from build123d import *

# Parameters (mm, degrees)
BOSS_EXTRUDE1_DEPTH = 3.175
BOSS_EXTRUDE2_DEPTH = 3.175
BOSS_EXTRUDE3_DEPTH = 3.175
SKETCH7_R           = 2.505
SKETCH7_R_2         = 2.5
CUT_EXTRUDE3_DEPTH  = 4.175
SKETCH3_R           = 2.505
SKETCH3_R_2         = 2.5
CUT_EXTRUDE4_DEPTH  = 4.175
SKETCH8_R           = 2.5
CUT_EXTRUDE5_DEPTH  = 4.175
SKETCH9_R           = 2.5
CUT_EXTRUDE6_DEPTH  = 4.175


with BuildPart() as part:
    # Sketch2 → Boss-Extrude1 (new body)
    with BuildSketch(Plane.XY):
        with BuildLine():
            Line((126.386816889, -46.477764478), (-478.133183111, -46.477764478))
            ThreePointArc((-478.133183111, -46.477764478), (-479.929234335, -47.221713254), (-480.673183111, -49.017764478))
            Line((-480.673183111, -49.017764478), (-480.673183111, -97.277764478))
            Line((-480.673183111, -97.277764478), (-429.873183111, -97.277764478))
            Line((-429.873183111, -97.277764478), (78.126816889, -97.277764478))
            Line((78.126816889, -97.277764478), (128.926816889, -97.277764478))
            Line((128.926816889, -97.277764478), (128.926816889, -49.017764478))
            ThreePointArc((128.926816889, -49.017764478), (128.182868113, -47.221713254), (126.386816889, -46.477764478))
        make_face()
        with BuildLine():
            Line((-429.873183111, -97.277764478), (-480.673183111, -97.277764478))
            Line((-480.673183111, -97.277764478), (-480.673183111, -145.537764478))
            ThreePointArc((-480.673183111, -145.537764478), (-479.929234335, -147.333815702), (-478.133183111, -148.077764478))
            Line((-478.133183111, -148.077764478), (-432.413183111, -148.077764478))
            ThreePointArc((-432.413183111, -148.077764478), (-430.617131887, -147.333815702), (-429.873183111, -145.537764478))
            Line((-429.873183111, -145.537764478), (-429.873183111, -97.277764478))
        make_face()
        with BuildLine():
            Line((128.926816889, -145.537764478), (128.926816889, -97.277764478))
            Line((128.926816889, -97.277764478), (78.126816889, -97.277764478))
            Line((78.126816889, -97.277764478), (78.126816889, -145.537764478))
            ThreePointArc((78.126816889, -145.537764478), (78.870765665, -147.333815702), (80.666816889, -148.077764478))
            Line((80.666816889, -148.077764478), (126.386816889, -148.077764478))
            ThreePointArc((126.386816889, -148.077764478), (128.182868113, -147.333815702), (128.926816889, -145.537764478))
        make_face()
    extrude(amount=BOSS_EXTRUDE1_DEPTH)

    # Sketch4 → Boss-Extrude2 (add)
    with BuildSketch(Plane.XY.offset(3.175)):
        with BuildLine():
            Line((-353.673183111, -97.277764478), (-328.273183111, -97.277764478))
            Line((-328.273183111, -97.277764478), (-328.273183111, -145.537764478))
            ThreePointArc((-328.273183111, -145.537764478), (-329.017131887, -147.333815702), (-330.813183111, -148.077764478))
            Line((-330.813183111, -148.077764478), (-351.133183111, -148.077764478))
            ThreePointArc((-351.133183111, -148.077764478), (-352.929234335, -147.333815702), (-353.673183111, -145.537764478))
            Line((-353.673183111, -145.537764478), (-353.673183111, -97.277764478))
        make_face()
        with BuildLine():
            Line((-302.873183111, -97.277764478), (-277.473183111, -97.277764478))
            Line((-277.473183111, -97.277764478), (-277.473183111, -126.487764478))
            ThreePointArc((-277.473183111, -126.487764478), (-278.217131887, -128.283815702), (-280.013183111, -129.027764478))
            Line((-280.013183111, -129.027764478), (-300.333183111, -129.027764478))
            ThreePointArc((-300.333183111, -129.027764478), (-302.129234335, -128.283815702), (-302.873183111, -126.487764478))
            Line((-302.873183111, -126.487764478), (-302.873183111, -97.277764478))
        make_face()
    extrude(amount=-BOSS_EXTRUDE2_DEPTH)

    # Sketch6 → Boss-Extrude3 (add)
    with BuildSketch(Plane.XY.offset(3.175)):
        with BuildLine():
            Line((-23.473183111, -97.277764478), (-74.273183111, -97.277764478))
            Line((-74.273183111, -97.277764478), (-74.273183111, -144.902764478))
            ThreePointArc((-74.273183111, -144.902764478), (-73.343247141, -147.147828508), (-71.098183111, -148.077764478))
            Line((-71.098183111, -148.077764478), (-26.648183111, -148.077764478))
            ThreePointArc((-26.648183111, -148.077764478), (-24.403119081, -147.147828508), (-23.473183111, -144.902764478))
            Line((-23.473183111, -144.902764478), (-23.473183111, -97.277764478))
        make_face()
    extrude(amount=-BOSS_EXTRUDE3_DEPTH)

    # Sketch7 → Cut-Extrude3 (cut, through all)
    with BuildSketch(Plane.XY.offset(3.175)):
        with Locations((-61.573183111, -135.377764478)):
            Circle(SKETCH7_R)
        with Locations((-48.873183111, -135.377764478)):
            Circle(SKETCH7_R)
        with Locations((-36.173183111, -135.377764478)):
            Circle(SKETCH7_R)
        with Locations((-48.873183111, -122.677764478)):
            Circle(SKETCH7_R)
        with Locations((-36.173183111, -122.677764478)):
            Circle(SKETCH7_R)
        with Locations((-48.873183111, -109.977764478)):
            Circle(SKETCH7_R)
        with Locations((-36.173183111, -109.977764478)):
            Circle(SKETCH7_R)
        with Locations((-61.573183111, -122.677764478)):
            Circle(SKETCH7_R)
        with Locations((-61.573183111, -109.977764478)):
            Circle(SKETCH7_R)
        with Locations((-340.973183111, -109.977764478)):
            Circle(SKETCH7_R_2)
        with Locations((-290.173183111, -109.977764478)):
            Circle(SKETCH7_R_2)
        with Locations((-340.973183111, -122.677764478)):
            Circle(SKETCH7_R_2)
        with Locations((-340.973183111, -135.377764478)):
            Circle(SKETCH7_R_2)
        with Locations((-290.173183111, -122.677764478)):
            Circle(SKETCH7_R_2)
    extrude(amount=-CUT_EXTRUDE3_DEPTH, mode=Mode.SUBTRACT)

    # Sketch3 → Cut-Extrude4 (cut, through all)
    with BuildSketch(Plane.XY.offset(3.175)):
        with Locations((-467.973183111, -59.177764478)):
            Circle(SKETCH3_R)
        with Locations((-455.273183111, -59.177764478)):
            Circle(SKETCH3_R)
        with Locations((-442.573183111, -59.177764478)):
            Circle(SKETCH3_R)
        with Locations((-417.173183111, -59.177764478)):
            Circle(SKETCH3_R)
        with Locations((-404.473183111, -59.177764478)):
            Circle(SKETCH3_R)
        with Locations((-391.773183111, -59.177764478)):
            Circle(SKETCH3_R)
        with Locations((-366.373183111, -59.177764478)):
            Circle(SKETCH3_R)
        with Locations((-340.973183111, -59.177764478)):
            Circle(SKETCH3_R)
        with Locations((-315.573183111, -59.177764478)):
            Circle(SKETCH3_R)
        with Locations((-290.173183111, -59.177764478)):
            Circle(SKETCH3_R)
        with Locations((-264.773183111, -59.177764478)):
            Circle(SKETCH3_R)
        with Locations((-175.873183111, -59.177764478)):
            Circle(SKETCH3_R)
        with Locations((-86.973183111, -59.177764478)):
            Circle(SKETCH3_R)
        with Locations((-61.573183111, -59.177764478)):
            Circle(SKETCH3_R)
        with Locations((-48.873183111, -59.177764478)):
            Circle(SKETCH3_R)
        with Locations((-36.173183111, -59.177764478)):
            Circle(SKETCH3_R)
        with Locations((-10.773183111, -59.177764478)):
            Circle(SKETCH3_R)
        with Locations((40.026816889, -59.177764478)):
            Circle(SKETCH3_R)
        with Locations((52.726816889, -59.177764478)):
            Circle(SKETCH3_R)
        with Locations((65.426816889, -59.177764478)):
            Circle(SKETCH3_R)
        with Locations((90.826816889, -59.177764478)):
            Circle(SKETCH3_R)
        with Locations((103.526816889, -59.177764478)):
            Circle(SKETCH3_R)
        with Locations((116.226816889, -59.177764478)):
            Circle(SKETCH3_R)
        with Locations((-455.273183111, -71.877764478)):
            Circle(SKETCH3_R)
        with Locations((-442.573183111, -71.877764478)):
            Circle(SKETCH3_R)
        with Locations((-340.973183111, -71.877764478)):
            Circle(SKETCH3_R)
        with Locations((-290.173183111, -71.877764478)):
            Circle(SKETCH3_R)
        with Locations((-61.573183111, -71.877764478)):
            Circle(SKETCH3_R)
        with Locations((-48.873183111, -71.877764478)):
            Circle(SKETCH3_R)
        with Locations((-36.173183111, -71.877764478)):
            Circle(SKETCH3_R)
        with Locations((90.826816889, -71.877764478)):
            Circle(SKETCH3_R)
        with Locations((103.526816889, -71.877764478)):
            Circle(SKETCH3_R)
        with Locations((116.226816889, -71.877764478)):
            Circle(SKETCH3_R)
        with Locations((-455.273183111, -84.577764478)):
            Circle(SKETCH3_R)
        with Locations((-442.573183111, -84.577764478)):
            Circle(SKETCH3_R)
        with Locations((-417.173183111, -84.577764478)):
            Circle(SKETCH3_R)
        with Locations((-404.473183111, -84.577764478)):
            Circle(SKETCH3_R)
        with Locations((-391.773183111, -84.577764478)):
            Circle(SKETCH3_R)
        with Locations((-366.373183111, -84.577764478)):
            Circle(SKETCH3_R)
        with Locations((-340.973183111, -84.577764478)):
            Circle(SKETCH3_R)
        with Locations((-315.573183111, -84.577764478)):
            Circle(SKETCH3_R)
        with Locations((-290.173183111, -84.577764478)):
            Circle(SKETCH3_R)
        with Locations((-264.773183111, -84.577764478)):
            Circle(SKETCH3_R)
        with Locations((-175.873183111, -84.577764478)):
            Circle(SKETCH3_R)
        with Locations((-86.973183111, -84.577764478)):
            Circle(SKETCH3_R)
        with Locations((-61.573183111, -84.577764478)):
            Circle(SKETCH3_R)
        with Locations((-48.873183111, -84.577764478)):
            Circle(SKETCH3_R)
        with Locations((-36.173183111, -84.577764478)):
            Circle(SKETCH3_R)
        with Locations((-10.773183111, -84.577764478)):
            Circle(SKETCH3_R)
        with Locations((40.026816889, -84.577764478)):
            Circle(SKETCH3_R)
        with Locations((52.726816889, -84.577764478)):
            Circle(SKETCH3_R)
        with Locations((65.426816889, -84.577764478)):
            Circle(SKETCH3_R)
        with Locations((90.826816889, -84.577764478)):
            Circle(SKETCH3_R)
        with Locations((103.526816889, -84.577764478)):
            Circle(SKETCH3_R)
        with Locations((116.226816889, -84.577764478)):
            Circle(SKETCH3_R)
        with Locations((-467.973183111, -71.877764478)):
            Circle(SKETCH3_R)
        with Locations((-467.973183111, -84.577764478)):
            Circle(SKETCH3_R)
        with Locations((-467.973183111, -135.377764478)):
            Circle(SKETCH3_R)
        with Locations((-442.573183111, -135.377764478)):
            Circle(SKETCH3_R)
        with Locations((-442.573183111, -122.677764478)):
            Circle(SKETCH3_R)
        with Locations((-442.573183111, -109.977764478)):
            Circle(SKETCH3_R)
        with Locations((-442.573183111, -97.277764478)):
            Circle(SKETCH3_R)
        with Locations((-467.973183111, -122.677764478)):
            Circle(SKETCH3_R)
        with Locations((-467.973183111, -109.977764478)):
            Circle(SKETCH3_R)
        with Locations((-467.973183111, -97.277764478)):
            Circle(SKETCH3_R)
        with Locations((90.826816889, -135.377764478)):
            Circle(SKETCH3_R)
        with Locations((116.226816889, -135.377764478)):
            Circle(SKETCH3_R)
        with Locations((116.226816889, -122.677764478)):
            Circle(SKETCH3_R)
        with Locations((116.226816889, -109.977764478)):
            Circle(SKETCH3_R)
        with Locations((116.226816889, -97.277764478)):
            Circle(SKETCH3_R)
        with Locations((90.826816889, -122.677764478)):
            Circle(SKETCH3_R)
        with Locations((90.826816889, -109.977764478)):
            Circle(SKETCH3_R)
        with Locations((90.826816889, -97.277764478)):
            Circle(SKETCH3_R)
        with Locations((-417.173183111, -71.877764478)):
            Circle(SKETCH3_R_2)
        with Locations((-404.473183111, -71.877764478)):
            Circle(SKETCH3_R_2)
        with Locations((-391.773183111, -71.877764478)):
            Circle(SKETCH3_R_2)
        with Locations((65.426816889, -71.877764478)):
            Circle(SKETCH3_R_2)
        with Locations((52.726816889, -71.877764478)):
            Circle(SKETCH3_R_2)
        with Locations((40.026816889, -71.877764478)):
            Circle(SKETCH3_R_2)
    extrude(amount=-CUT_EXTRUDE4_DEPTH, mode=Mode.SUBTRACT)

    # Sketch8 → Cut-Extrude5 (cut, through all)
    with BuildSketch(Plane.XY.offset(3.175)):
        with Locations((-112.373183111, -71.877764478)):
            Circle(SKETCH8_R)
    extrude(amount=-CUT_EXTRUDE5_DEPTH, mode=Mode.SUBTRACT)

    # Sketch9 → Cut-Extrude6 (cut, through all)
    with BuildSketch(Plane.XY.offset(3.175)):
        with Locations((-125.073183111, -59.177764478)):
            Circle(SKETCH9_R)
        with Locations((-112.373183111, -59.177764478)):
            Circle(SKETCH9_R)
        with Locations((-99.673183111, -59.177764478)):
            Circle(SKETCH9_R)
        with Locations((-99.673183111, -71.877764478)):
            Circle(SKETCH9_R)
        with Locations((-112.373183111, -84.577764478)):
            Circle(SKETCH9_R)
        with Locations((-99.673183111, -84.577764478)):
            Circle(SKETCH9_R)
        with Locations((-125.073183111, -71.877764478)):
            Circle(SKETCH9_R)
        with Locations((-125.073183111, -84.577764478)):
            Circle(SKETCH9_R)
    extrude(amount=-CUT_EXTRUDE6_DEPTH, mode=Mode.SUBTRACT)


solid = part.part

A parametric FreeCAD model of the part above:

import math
import FreeCAD as App
import Part
import Sketcher

V = App.Vector
Q = App.Units.Quantity

doc = App.newDocument("Part")
body = doc.addObject("PartDesign::Body", "Body")

sketch1 = doc.addObject("Sketcher::SketchObject", "Sketch")
body.addObject(sketch1)
sketch1.AttachmentSupport = (doc.XY_Plane, [""])
sketch1.MapMode = "FlatFace"
sketch1.addGeometry([
    Part.LineSegment(V(126.4, -46.5, 0), V(-478.1, -46.5, 0)),
    Part.ArcOfCircle(Part.Circle(V(-478.1, -49, 0), V(0, 0, 1), 2.5), math.radians(90), math.radians(180)),
    Part.LineSegment(V(-480.7, -49, 0), V(-480.7, -145.5, 0)),
    Part.ArcOfCircle(Part.Circle(V(-478.1, -145.5, 0), V(0, 0, 1), 2.5), math.radians(-180), math.radians(-90)),
    Part.LineSegment(V(-478.1, -148.1, 0), V(-432.4, -148.1, 0)),
    Part.ArcOfCircle(Part.Circle(V(-432.4, -145.5, 0), V(0, 0, 1), 2.5), math.radians(-90), math.radians(0)),
    Part.LineSegment(V(-429.9, -145.5, 0), V(-429.9, -97.3, 0)),
    Part.LineSegment(V(-429.9, -97.3, 0), V(78.1, -97.3, 0)),
    Part.LineSegment(V(78.1, -97.3, 0), V(78.1, -145.5, 0)),
    Part.ArcOfCircle(Part.Circle(V(80.7, -145.5, 0), V(0, 0, 1), 2.5), math.radians(-180), math.radians(-90)),
    Part.LineSegment(V(80.7, -148.1, 0), V(126.4, -148.1, 0)),
    Part.ArcOfCircle(Part.Circle(V(126.4, -145.5, 0), V(0, 0, 1), 2.5), math.radians(-90), math.radians(0)),
    Part.LineSegment(V(128.9, -145.5, 0), V(128.9, -49, 0)),
    Part.ArcOfCircle(Part.Circle(V(126.4, -49, 0), V(0, 0, 1), 2.5), math.radians(0), math.radians(90)),
], False)
sketch1.addConstraint([
    Sketcher.Constraint("Tangent", 0, 2, 1, 1),
    Sketcher.Constraint("Tangent", 1, 2, 2, 1),
    Sketcher.Constraint("Tangent", 2, 2, 3, 1),
    Sketcher.Constraint("Tangent", 3, 2, 4, 1),
    Sketcher.Constraint("Tangent", 4, 2, 5, 1),
    Sketcher.Constraint("Tangent", 5, 2, 6, 1),
    Sketcher.Constraint("Coincident", 6, 2, 7, 1),
    Sketcher.Constraint("Coincident", 7, 2, 8, 1),
    Sketcher.Constraint("Tangent", 8, 2, 9, 1),
    Sketcher.Constraint("Tangent", 9, 2, 10, 1),
    Sketcher.Constraint("Tangent", 10, 2, 11, 1),
    Sketcher.Constraint("Tangent", 11, 2, 12, 1),
    Sketcher.Constraint("Tangent", 12, 2, 13, 1),
    Sketcher.Constraint("Tangent", 13, 2, 0, 1),
    Sketcher.Constraint("Horizontal", 0),
    Sketcher.Constraint("Vertical", 2),
    Sketcher.Constraint("Horizontal", 4),
    Sketcher.Constraint("Vertical", 6),
    Sketcher.Constraint("Horizontal", 7),
    Sketcher.Constraint("Vertical", 8),
    Sketcher.Constraint("Horizontal", 10),
    Sketcher.Constraint("Vertical", 12),
    Sketcher.Constraint("Equal", 1, 3),
    Sketcher.Constraint("Equal", 3, 5),
    Sketcher.Constraint("Equal", 5, 9),
    Sketcher.Constraint("Equal", 9, 11),
    Sketcher.Constraint("Equal", 11, 13),
    Sketcher.Constraint("Horizontal", 5, 3, 9, 3),
    Sketcher.Constraint("Equal", 4, 10),
    Sketcher.Constraint("Radius", 1, Q("0.1 in")),
    Sketcher.Constraint("DistanceX", 7, 1, 7, 2, Q("20 in")),
    Sketcher.Constraint("DistanceX", 0, 2, 0, 1, Q("23.8 in")),
    Sketcher.Constraint("DistanceY", 2, 2, 2, 1, Q("3.8 in")),
    Sketcher.Constraint("DistanceY", 6, 1, 6, 2, Q("1.9 in")),
    Sketcher.Constraint("DistanceX", 1, 3, -1, 1, 478.133183),
    Sketcher.Constraint("DistanceY", 1, 3, -1, 1, 49.017764),
])
pad1 = doc.addObject("PartDesign::Pad", "Pad")
body.addObject(pad1)
pad1.Profile = sketch1
pad1.Length = Q("0.125 in")

sketch2 = doc.addObject("Sketcher::SketchObject", "Sketch001")
body.addObject(sketch2)
sketch2.AttachmentSupport = (doc.XY_Plane, [""])
sketch2.MapMode = "FlatFace"
sketch2.AttachmentOffset = App.Placement(V(0, 0, 0.125 * 25.4), App.Rotation())
sketch2.addGeometry([
    Part.LineSegment(V(-328.3, -97.3, 0), V(-353.7, -97.3, 0)),
    Part.LineSegment(V(-353.7, -97.3, 0), V(-353.7, -145.5, 0)),
    Part.ArcOfCircle(Part.Circle(V(-351.1, -145.5, 0), V(0, 0, 1), 2.5), math.radians(-180), math.radians(-90)),
    Part.LineSegment(V(-351.1, -148.1, 0), V(-330.8, -148.1, 0)),
    Part.ArcOfCircle(Part.Circle(V(-330.8, -145.5, 0), V(0, 0, 1), 2.5), math.radians(-90), math.radians(0)),
    Part.LineSegment(V(-328.3, -145.5, 0), V(-328.3, -97.3, 0)),
    Part.LineSegment(V(-277.5, -97.3, 0), V(-302.9, -97.3, 0)),
    Part.LineSegment(V(-302.9, -97.3, 0), V(-302.9, -126.5, 0)),
    Part.ArcOfCircle(Part.Circle(V(-300.3, -126.5, 0), V(0, 0, 1), 2.5), math.radians(-180), math.radians(-90)),
    Part.LineSegment(V(-300.3, -129, 0), V(-280, -129, 0)),
    Part.ArcOfCircle(Part.Circle(V(-280, -126.5, 0), V(0, 0, 1), 2.5), math.radians(-90), math.radians(0)),
    Part.LineSegment(V(-277.5, -126.5, 0), V(-277.5, -97.3, 0)),
], False)
sketch2.addConstraint([
    Sketcher.Constraint("Coincident", 0, 2, 1, 1),
    Sketcher.Constraint("Tangent", 1, 2, 2, 1),
    Sketcher.Constraint("Tangent", 2, 2, 3, 1),
    Sketcher.Constraint("Tangent", 3, 2, 4, 1),
    Sketcher.Constraint("Tangent", 4, 2, 5, 1),
    Sketcher.Constraint("Coincident", 5, 2, 0, 1),
    Sketcher.Constraint("Coincident", 6, 2, 7, 1),
    Sketcher.Constraint("Tangent", 7, 2, 8, 1),
    Sketcher.Constraint("Tangent", 8, 2, 9, 1),
    Sketcher.Constraint("Tangent", 9, 2, 10, 1),
    Sketcher.Constraint("Tangent", 10, 2, 11, 1),
    Sketcher.Constraint("Coincident", 11, 2, 6, 1),
    Sketcher.Constraint("Horizontal", 0),
    Sketcher.Constraint("Vertical", 1),
    Sketcher.Constraint("Horizontal", 3),
    Sketcher.Constraint("Vertical", 5),
    Sketcher.Constraint("Horizontal", 6),
    Sketcher.Constraint("Vertical", 7),
    Sketcher.Constraint("Horizontal", 9),
    Sketcher.Constraint("Vertical", 11),
    Sketcher.Constraint("Equal", 2, 4),
    Sketcher.Constraint("Equal", 4, 8),
    Sketcher.Constraint("Equal", 8, 10),
    Sketcher.Constraint("Horizontal", 5, 2, 6, 2),
    Sketcher.Constraint("Equal", 0, 6),
    Sketcher.Constraint("Radius", 2, Q("0.1 in")),
    Sketcher.Constraint("DistanceX", 0, 2, 0, 1, Q("1 in")),
    Sketcher.Constraint("DistanceY", 1, 2, 1, 1, Q("1.9 in")),
    Sketcher.Constraint("DistanceX", 2, 3, 8, 3, Q("2 in")),
    Sketcher.Constraint("DistanceY", 7, 2, 7, 1, Q("1.15 in")),
    Sketcher.Constraint("DistanceX", 2, 3, -1, 1, 351.133183),
    Sketcher.Constraint("DistanceY", 2, 3, -1, 1, 145.537764),
])
pad2 = doc.addObject("PartDesign::Pad", "Pad001")
body.addObject(pad2)
pad2.Profile = sketch2
pad2.Length = Q("0.125 in")
pad2.Reversed = True

sketch3 = doc.addObject("Sketcher::SketchObject", "Sketch002")
body.addObject(sketch3)
sketch3.AttachmentSupport = (doc.XY_Plane, [""])
sketch3.MapMode = "FlatFace"
sketch3.AttachmentOffset = App.Placement(V(0, 0, 0.125 * 25.4), App.Rotation())
sketch3.addGeometry([
    Part.LineSegment(V(-23.5, -97.3, 0), V(-74.3, -97.3, 0)),
    Part.LineSegment(V(-74.3, -97.3, 0), V(-74.3, -144.9, 0)),
    Part.ArcOfCircle(Part.Circle(V(-71.1, -144.9, 0), V(0, 0, 1), 3.2), math.radians(-180), math.radians(-90)),
    Part.LineSegment(V(-71.1, -148.1, 0), V(-26.6, -148.1, 0)),
    Part.ArcOfCircle(Part.Circle(V(-26.6, -144.9, 0), V(0, 0, 1), 3.2), math.radians(-90), math.radians(0)),
    Part.LineSegment(V(-23.5, -144.9, 0), V(-23.5, -97.3, 0)),
], False)
sketch3.addConstraint([
    Sketcher.Constraint("Coincident", 0, 2, 1, 1),
    Sketcher.Constraint("Tangent", 1, 2, 2, 1),
    Sketcher.Constraint("Tangent", 2, 2, 3, 1),
    Sketcher.Constraint("Tangent", 3, 2, 4, 1),
    Sketcher.Constraint("Tangent", 4, 2, 5, 1),
    Sketcher.Constraint("Coincident", 5, 2, 0, 1),
    Sketcher.Constraint("Horizontal", 0),
    Sketcher.Constraint("Vertical", 1),
    Sketcher.Constraint("Horizontal", 3),
    Sketcher.Constraint("Vertical", 5),
    Sketcher.Constraint("Equal", 2, 4),
    Sketcher.Constraint("DistanceX", 0, 2, 0, 1, Q("2 in")),
    Sketcher.Constraint("Radius", 2, Q("0.125 in")),
    Sketcher.Constraint("DistanceY", 2, 2, 0, 2, Q("2 in")),
    Sketcher.Constraint("DistanceX", 2, 3, -1, 1, 71.098183),
    Sketcher.Constraint("DistanceY", 2, 3, -1, 1, 144.902764),
])
pad3 = doc.addObject("PartDesign::Pad", "Pad002")
body.addObject(pad3)
pad3.Profile = sketch3
pad3.Length = Q("0.125 in")
pad3.Reversed = True

sketch4 = doc.addObject("Sketcher::SketchObject", "Sketch003")
body.addObject(sketch4)
sketch4.AttachmentSupport = (doc.XY_Plane, [""])
sketch4.MapMode = "FlatFace"
sketch4.AttachmentOffset = App.Placement(V(0, 0, 0.125 * 25.4), App.Rotation())
sketch4.addGeometry([
    Part.Circle(V(-61.6, -135.4, 0), V(0, 0, 1), 2.5),
    Part.Circle(V(-48.9, -135.4, 0), V(0, 0, 1), 2.5),
    Part.Circle(V(-36.2, -135.4, 0), V(0, 0, 1), 2.5),
    Part.Circle(V(-48.9, -122.7, 0), V(0, 0, 1), 2.5),
    Part.Circle(V(-36.2, -122.7, 0), V(0, 0, 1), 2.5),
    Part.Circle(V(-48.9, -110, 0), V(0, 0, 1), 2.5),
    Part.Circle(V(-36.2, -110, 0), V(0, 0, 1), 2.5),
    Part.Circle(V(-61.6, -122.7, 0), V(0, 0, 1), 2.5),
    Part.Circle(V(-61.6, -110, 0), V(0, 0, 1), 2.5),
    Part.Circle(V(-341, -110, 0), V(0, 0, 1), 2.5),
    Part.Circle(V(-290.2, -110, 0), V(0, 0, 1), 2.5),
    Part.Circle(V(-341, -122.7, 0), V(0, 0, 1), 2.5),
    Part.Circle(V(-341, -135.4, 0), V(0, 0, 1), 2.5),
    Part.Circle(V(-290.2, -122.7, 0), V(0, 0, 1), 2.5),
], False)
sketch4.addConstraint([
    Sketcher.Constraint("Equal", 0, 1),
    Sketcher.Constraint("Equal", 1, 2),
    Sketcher.Constraint("Equal", 2, 3),
    Sketcher.Constraint("Equal", 3, 4),
    Sketcher.Constraint("Equal", 4, 5),
    Sketcher.Constraint("Equal", 5, 6),
    Sketcher.Constraint("Equal", 6, 7),
    Sketcher.Constraint("Equal", 7, 8),
    Sketcher.Constraint("Equal", 9, 10),
    Sketcher.Constraint("Equal", 10, 11),
    Sketcher.Constraint("Equal", 11, 12),
    Sketcher.Constraint("Equal", 12, 13),
    Sketcher.Constraint("Horizontal", 0, 3, 1, 3),
    Sketcher.Constraint("Horizontal", 1, 3, 2, 3),
    Sketcher.Constraint("Horizontal", 3, 3, 4, 3),
    Sketcher.Constraint("Horizontal", 5, 3, 6, 3),
    Sketcher.Constraint("Horizontal", 4, 3, 7, 3),
    Sketcher.Constraint("Horizontal", 6, 3, 8, 3),
    Sketcher.Constraint("Horizontal", 8, 3, 9, 3),
    Sketcher.Constraint("Horizontal", 9, 3, 10, 3),
    Sketcher.Constraint("Horizontal", 7, 3, 11, 3),
    Sketcher.Constraint("Horizontal", 2, 3, 12, 3),
    Sketcher.Constraint("Horizontal", 11, 3, 13, 3),
    Sketcher.Constraint("Vertical", 1, 3, 3, 3),
    Sketcher.Constraint("Vertical", 2, 3, 4, 3),
    Sketcher.Constraint("Vertical", 3, 3, 5, 3),
    Sketcher.Constraint("Vertical", 4, 3, 6, 3),
    Sketcher.Constraint("Vertical", 0, 3, 7, 3),
    Sketcher.Constraint("Vertical", 7, 3, 8, 3),
    Sketcher.Constraint("Vertical", 9, 3, 11, 3),
    Sketcher.Constraint("Vertical", 11, 3, 12, 3),
    Sketcher.Constraint("Vertical", 10, 3, 13, 3),
    Sketcher.Constraint("DistanceX", 0, 3, 2, 3, Q("1 in")),
    Sketcher.Constraint("DistanceY", 1, 3, 5, 3, Q("1 in")),
    Sketcher.Constraint("DistanceX", 9, 3, 8, 3, Q("11 in")),
    Sketcher.Constraint("DistanceX", 9, 3, 10, 3, Q("2 in")),
    Sketcher.Constraint("DistanceX", 0, 3, 1, 3, Q("0.5 in")),
    Sketcher.Constraint("DistanceY", 1, 3, 3, 3, Q("0.5 in")),
    Sketcher.Constraint("Diameter", 0, 5.01),
    Sketcher.Constraint("Diameter", 9, 5.0),
    Sketcher.Constraint("DistanceX", 0, 3, -1, 1, 61.573183),
    Sketcher.Constraint("DistanceY", 0, 3, -1, 1, 135.377764),
])
pocket1 = doc.addObject("PartDesign::Pocket", "Pocket")
body.addObject(pocket1)
pocket1.Profile = sketch4
pocket1.Type = "ThroughAll"

sketch5 = doc.addObject("Sketcher::SketchObject", "Sketch004")
body.addObject(sketch5)
sketch5.AttachmentSupport = (doc.XY_Plane, [""])
sketch5.MapMode = "FlatFace"
sketch5.AttachmentOffset = App.Placement(V(0, 0, 0.125 * 25.4), App.Rotation())
sketch5.addGeometry([
    Part.Circle(V(-468, -59.2, 0), V(0, 0, 1), 2.5),
    Part.Circle(V(-455.3, -59.2, 0), V(0, 0, 1), 2.5),
    Part.Circle(V(-442.6, -59.2, 0), V(0, 0, 1), 2.5),
    Part.Circle(V(-417.2, -59.2, 0), V(0, 0, 1), 2.5),
    Part.Circle(V(-404.5, -59.2, 0), V(0, 0, 1), 2.5),
    Part.Circle(V(-391.8, -59.2, 0), V(0, 0, 1), 2.5),
    Part.Circle(V(-366.4, -59.2, 0), V(0, 0, 1), 2.5),
    Part.Circle(V(-341, -59.2, 0), V(0, 0, 1), 2.5),
    Part.Circle(V(-315.6, -59.2, 0), V(0, 0, 1), 2.5),
    Part.Circle(V(-290.2, -59.2, 0), V(0, 0, 1), 2.5),
    Part.Circle(V(-264.8, -59.2, 0), V(0, 0, 1), 2.5),
    Part.Circle(V(-175.9, -59.2, 0), V(0, 0, 1), 2.5),
    Part.Circle(V(-87, -59.2, 0), V(0, 0, 1), 2.5),
    Part.Circle(V(-61.6, -59.2, 0), V(0, 0, 1), 2.5),
    Part.Circle(V(-48.9, -59.2, 0), V(0, 0, 1), 2.5),
    Part.Circle(V(-36.2, -59.2, 0), V(0, 0, 1), 2.5),
    Part.Circle(V(-10.8, -59.2, 0), V(0, 0, 1), 2.5),
    Part.Circle(V(40, -59.2, 0), V(0, 0, 1), 2.5),
    Part.Circle(V(52.7, -59.2, 0), V(0, 0, 1), 2.5),
    Part.Circle(V(65.4, -59.2, 0), V(0, 0, 1), 2.5),
    Part.Circle(V(90.8, -59.2, 0), V(0, 0, 1), 2.5),
    Part.Circle(V(103.5, -59.2, 0), V(0, 0, 1), 2.5),
    Part.Circle(V(116.2, -59.2, 0), V(0, 0, 1), 2.5),
    Part.Circle(V(-455.3, -71.9, 0), V(0, 0, 1), 2.5),
    Part.Circle(V(-442.6, -71.9, 0), V(0, 0, 1), 2.5),
    Part.Circle(V(-341, -71.9, 0), V(0, 0, 1), 2.5),
    Part.Circle(V(-290.2, -71.9, 0), V(0, 0, 1), 2.5),
    Part.Circle(V(-61.6, -71.9, 0), V(0, 0, 1), 2.5),
    Part.Circle(V(-48.9, -71.9, 0), V(0, 0, 1), 2.5),
    Part.Circle(V(-36.2, -71.9, 0), V(0, 0, 1), 2.5),
    Part.Circle(V(90.8, -71.9, 0), V(0, 0, 1), 2.5),
    Part.Circle(V(103.5, -71.9, 0), V(0, 0, 1), 2.5),
    Part.Circle(V(116.2, -71.9, 0), V(0, 0, 1), 2.5),
    Part.Circle(V(-455.3, -84.6, 0), V(0, 0, 1), 2.5),
    Part.Circle(V(-442.6, -84.6, 0), V(0, 0, 1), 2.5),
    Part.Circle(V(-417.2, -84.6, 0), V(0, 0, 1), 2.5),
    Part.Circle(V(-404.5, -84.6, 0), V(0, 0, 1), 2.5),
    Part.Circle(V(-391.8, -84.6, 0), V(0, 0, 1), 2.5),
    Part.Circle(V(-366.4, -84.6, 0), V(0, 0, 1), 2.5),
    Part.Circle(V(-341, -84.6, 0), V(0, 0, 1), 2.5),
    Part.Circle(V(-315.6, -84.6, 0), V(0, 0, 1), 2.5),
    Part.Circle(V(-290.2, -84.6, 0), V(0, 0, 1), 2.5),
    Part.Circle(V(-264.8, -84.6, 0), V(0, 0, 1), 2.5),
    Part.Circle(V(-175.9, -84.6, 0), V(0, 0, 1), 2.5),
    Part.Circle(V(-87, -84.6, 0), V(0, 0, 1), 2.5),
    Part.Circle(V(-61.6, -84.6, 0), V(0, 0, 1), 2.5),
    Part.Circle(V(-48.9, -84.6, 0), V(0, 0, 1), 2.5),
    Part.Circle(V(-36.2, -84.6, 0), V(0, 0, 1), 2.5),
    Part.Circle(V(-10.8, -84.6, 0), V(0, 0, 1), 2.5),
    Part.Circle(V(40, -84.6, 0), V(0, 0, 1), 2.5),
    Part.Circle(V(52.7, -84.6, 0), V(0, 0, 1), 2.5),
    Part.Circle(V(65.4, -84.6, 0), V(0, 0, 1), 2.5),
    Part.Circle(V(90.8, -84.6, 0), V(0, 0, 1), 2.5),
    Part.Circle(V(103.5, -84.6, 0), V(0, 0, 1), 2.5),
    Part.Circle(V(116.2, -84.6, 0), V(0, 0, 1), 2.5),
    Part.Circle(V(-468, -71.9, 0), V(0, 0, 1), 2.5),
    Part.Circle(V(-468, -84.6, 0), V(0, 0, 1), 2.5),
    Part.Circle(V(-468, -135.4, 0), V(0, 0, 1), 2.5),
    Part.Circle(V(-442.6, -135.4, 0), V(0, 0, 1), 2.5),
    Part.Circle(V(-442.6, -122.7, 0), V(0, 0, 1), 2.5),
    Part.Circle(V(-442.6, -110, 0), V(0, 0, 1), 2.5),
    Part.Circle(V(-442.6, -97.3, 0), V(0, 0, 1), 2.5),
    Part.Circle(V(-468, -122.7, 0), V(0, 0, 1), 2.5),
    Part.Circle(V(-468, -110, 0), V(0, 0, 1), 2.5),
    Part.Circle(V(-468, -97.3, 0), V(0, 0, 1), 2.5),
    Part.Circle(V(90.8, -135.4, 0), V(0, 0, 1), 2.5),
    Part.Circle(V(116.2, -135.4, 0), V(0, 0, 1), 2.5),
    Part.Circle(V(116.2, -122.7, 0), V(0, 0, 1), 2.5),
    Part.Circle(V(116.2, -110, 0), V(0, 0, 1), 2.5),
    Part.Circle(V(116.2, -97.3, 0), V(0, 0, 1), 2.5),
    Part.Circle(V(90.8, -122.7, 0), V(0, 0, 1), 2.5),
    Part.Circle(V(90.8, -110, 0), V(0, 0, 1), 2.5),
    Part.Circle(V(90.8, -97.3, 0), V(0, 0, 1), 2.5),
    Part.Circle(V(-417.2, -71.9, 0), V(0, 0, 1), 2.5),
    Part.Circle(V(-404.5, -71.9, 0), V(0, 0, 1), 2.5),
    Part.Circle(V(-391.8, -71.9, 0), V(0, 0, 1), 2.5),
    Part.Circle(V(65.4, -71.9, 0), V(0, 0, 1), 2.5),
    Part.Circle(V(52.7, -71.9, 0), V(0, 0, 1), 2.5),
    Part.Circle(V(40, -71.9, 0), V(0, 0, 1), 2.5),
], False)
sketch5.addConstraint([
    Sketcher.Constraint("Equal", 0, 1),
    Sketcher.Constraint("Equal", 1, 2),
    Sketcher.Constraint("Equal", 2, 3),
    Sketcher.Constraint("Equal", 3, 4),
    Sketcher.Constraint("Equal", 4, 5),
    Sketcher.Constraint("Equal", 5, 6),
    Sketcher.Constraint("Equal", 6, 7),
    Sketcher.Constraint("Equal", 7, 8),
    Sketcher.Constraint("Equal", 8, 9),
    Sketcher.Constraint("Equal", 9, 10),
    Sketcher.Constraint("Equal", 10, 11),
    Sketcher.Constraint("Equal", 11, 12),
    Sketcher.Constraint("Equal", 12, 13),
    Sketcher.Constraint("Equal", 13, 14),
    Sketcher.Constraint("Equal", 14, 15),
    Sketcher.Constraint("Equal", 15, 16),
    Sketcher.Constraint("Equal", 16, 17),
    Sketcher.Constraint("Equal", 17, 18),
    Sketcher.Constraint("Equal", 18, 19),
    Sketcher.Constraint("Equal", 19, 20),
    Sketcher.Constraint("Equal", 20, 21),
    Sketcher.Constraint("Equal", 21, 22),
    Sketcher.Constraint("Equal", 22, 23),
    Sketcher.Constraint("Equal", 23, 24),
    Sketcher.Constraint("Equal", 24, 25),
    Sketcher.Constraint("Equal", 25, 26),
    Sketcher.Constraint("Equal", 26, 27),
    Sketcher.Constraint("Equal", 27, 28),
    Sketcher.Constraint("Equal", 28, 29),
    Sketcher.Constraint("Equal", 29, 30),
    Sketcher.Constraint("Equal", 30, 31),
    Sketcher.Constraint("Equal", 31, 32),
    Sketcher.Constraint("Equal", 32, 33),
    Sketcher.Constraint("Equal", 33, 34),
    Sketcher.Constraint("Equal", 34, 35),
    Sketcher.Constraint("Equal", 35, 36),
    Sketcher.Constraint("Equal", 36, 37),
    Sketcher.Constraint("Equal", 37, 38),
    Sketcher.Constraint("Equal", 38, 39),
    Sketcher.Constraint("Equal", 39, 40),
    Sketcher.Constraint("Equal", 40, 41),
    Sketcher.Constraint("Equal", 41, 42),
    Sketcher.Constraint("Equal", 42, 43),
    Sketcher.Constraint("Equal", 43, 44),
    Sketcher.Constraint("Equal", 44, 45),
    Sketcher.Constraint("Equal", 45, 46),
    Sketcher.Constraint("Equal", 46, 47),
    Sketcher.Constraint("Equal", 47, 48),
    Sketcher.Constraint("Equal", 48, 49),
    Sketcher.Constraint("Equal", 49, 50),
    Sketcher.Constraint("Equal", 50, 51),
    Sketcher.Constraint("Equal", 51, 52),
    Sketcher.Constraint("Equal", 52, 53),
    Sketcher.Constraint("Equal", 53, 54),
    Sketcher.Constraint("Equal", 54, 55),
    Sketcher.Constraint("Equal", 55, 56),
    Sketcher.Constraint("Equal", 56, 57),
    Sketcher.Constraint("Equal", 57, 58),
    Sketcher.Constraint("Equal", 58, 59),
    Sketcher.Constraint("Equal", 59, 60),
    Sketcher.Constraint("Equal", 60, 61),
    Sketcher.Constraint("Equal", 61, 62),
    Sketcher.Constraint("Equal", 62, 63),
    Sketcher.Constraint("Equal", 63, 64),
    Sketcher.Constraint("Equal", 64, 65),
    Sketcher.Constraint("Equal", 65, 66),
    Sketcher.Constraint("Equal", 66, 67),
    Sketcher.Constraint("Equal", 67, 68),
    Sketcher.Constraint("Equal", 68, 69),
    Sketcher.Constraint("Equal", 69, 70),
    Sketcher.Constraint("Equal", 70, 71),
    Sketcher.Constraint("Equal", 71, 72),
    Sketcher.Constraint("Equal", 73, 74),
    Sketcher.Constraint("Equal", 74, 75),
    Sketcher.Constraint("Equal", 75, 76),
    Sketcher.Constraint("Equal", 76, 77),
    Sketcher.Constraint("Equal", 77, 78),
    Sketcher.Constraint("Horizontal", 0, 3, 1, 3),
    Sketcher.Constraint("Horizontal", 1, 3, 2, 3),
    Sketcher.Constraint("Horizontal", 2, 3, 3, 3),
    Sketcher.Constraint("Horizontal", 3, 3, 4, 3),
    Sketcher.Constraint("Horizontal", 4, 3, 5, 3),
    Sketcher.Constraint("Horizontal", 5, 3, 6, 3),
    Sketcher.Constraint("Horizontal", 6, 3, 7, 3),
    Sketcher.Constraint("Horizontal", 7, 3, 8, 3),
    Sketcher.Constraint("Horizontal", 8, 3, 9, 3),
    Sketcher.Constraint("Horizontal", 9, 3, 10, 3),
    Sketcher.Constraint("Horizontal", 10, 3, 11, 3),
    Sketcher.Constraint("Horizontal", 11, 3, 12, 3),
    Sketcher.Constraint("Horizontal", 12, 3, 13, 3),
    Sketcher.Constraint("Horizontal", 13, 3, 14, 3),
    Sketcher.Constraint("Horizontal", 14, 3, 15, 3),
    Sketcher.Constraint("Horizontal", 15, 3, 16, 3),
    Sketcher.Constraint("Horizontal", 16, 3, 17, 3),
    Sketcher.Constraint("Horizontal", 17, 3, 18, 3),
    Sketcher.Constraint("Horizontal", 18, 3, 19, 3),
    Sketcher.Constraint("Horizontal", 19, 3, 20, 3),
    Sketcher.Constraint("Horizontal", 20, 3, 21, 3),
    Sketcher.Constraint("Horizontal", 21, 3, 22, 3),
    Sketcher.Constraint("Horizontal", 23, 3, 24, 3),
    Sketcher.Constraint("Horizontal", 24, 3, 25, 3),
    Sketcher.Constraint("Horizontal", 25, 3, 26, 3),
    Sketcher.Constraint("Horizontal", 26, 3, 27, 3),
    Sketcher.Constraint("Horizontal", 27, 3, 28, 3),
    Sketcher.Constraint("Horizontal", 28, 3, 29, 3),
    Sketcher.Constraint("Horizontal", 29, 3, 30, 3),
    Sketcher.Constraint("Horizontal", 30, 3, 31, 3),
    Sketcher.Constraint("Horizontal", 31, 3, 32, 3),
    Sketcher.Constraint("Horizontal", 33, 3, 34, 3),
    Sketcher.Constraint("Horizontal", 34, 3, 35, 3),
    Sketcher.Constraint("Horizontal", 35, 3, 36, 3),
    Sketcher.Constraint("Horizontal", 36, 3, 37, 3),
    Sketcher.Constraint("Horizontal", 37, 3, 38, 3),
    Sketcher.Constraint("Horizontal", 38, 3, 39, 3),
    Sketcher.Constraint("Horizontal", 39, 3, 40, 3),
    Sketcher.Constraint("Horizontal", 40, 3, 41, 3),
    Sketcher.Constraint("Horizontal", 41, 3, 42, 3),
    Sketcher.Constraint("Horizontal", 42, 3, 43, 3),
    Sketcher.Constraint("Horizontal", 43, 3, 44, 3),
    Sketcher.Constraint("Horizontal", 44, 3, 45, 3),
    Sketcher.Constraint("Horizontal", 45, 3, 46, 3),
    Sketcher.Constraint("Horizontal", 46, 3, 47, 3),
    Sketcher.Constraint("Horizontal", 47, 3, 48, 3),
    Sketcher.Constraint("Horizontal", 48, 3, 49, 3),
    Sketcher.Constraint("Horizontal", 49, 3, 50, 3),
    Sketcher.Constraint("Horizontal", 50, 3, 51, 3),
    Sketcher.Constraint("Horizontal", 51, 3, 52, 3),
    Sketcher.Constraint("Horizontal", 52, 3, 53, 3),
    Sketcher.Constraint("Horizontal", 53, 3, 54, 3),
    Sketcher.Constraint("Horizontal", 32, 3, 55, 3),
    Sketcher.Constraint("Horizontal", 54, 3, 56, 3),
    Sketcher.Constraint("Horizontal", 57, 3, 58, 3),
    Sketcher.Constraint("Horizontal", 59, 3, 62, 3),
    Sketcher.Constraint("Horizontal", 60, 3, 63, 3),
    Sketcher.Constraint("Horizontal", 61, 3, 64, 3),
    Sketcher.Constraint("Horizontal", 58, 3, 65, 3),
    Sketcher.Constraint("Horizontal", 65, 3, 66, 3),
    Sketcher.Constraint("Horizontal", 62, 3, 67, 3),
    Sketcher.Constraint("Horizontal", 63, 3, 68, 3),
    Sketcher.Constraint("Horizontal", 64, 3, 69, 3),
    Sketcher.Constraint("Horizontal", 67, 3, 70, 3),
    Sketcher.Constraint("Horizontal", 68, 3, 71, 3),
    Sketcher.Constraint("Horizontal", 69, 3, 72, 3),
    Sketcher.Constraint("Horizontal", 55, 3, 73, 3),
    Sketcher.Constraint("Horizontal", 73, 3, 74, 3),
    Sketcher.Constraint("Horizontal", 74, 3, 75, 3),
    Sketcher.Constraint("Horizontal", 75, 3, 76, 3),
    Sketcher.Constraint("Horizontal", 76, 3, 77, 3),
    Sketcher.Constraint("Horizontal", 77, 3, 78, 3),
    Sketcher.Constraint("Vertical", 1, 3, 23, 3),
    Sketcher.Constraint("Vertical", 2, 3, 24, 3),
    Sketcher.Constraint("Vertical", 7, 3, 25, 3),
    Sketcher.Constraint("Vertical", 9, 3, 26, 3),
    Sketcher.Constraint("Vertical", 13, 3, 27, 3),
    Sketcher.Constraint("Vertical", 14, 3, 28, 3),
    Sketcher.Constraint("Vertical", 15, 3, 29, 3),
    Sketcher.Constraint("Vertical", 20, 3, 30, 3),
    Sketcher.Constraint("Vertical", 21, 3, 31, 3),
    Sketcher.Constraint("Vertical", 22, 3, 32, 3),
    Sketcher.Constraint("Vertical", 23, 3, 33, 3),
    Sketcher.Constraint("Vertical", 24, 3, 34, 3),
    Sketcher.Constraint("Vertical", 3, 3, 35, 3),
    Sketcher.Constraint("Vertical", 4, 3, 36, 3),
    Sketcher.Constraint("Vertical", 5, 3, 37, 3),
    Sketcher.Constraint("Vertical", 6, 3, 38, 3),
    Sketcher.Constraint("Vertical", 25, 3, 39, 3),
    Sketcher.Constraint("Vertical", 8, 3, 40, 3),
    Sketcher.Constraint("Vertical", 26, 3, 41, 3),
    Sketcher.Constraint("Vertical", 10, 3, 42, 3),
    Sketcher.Constraint("Vertical", 11, 3, 43, 3),
    Sketcher.Constraint("Vertical", 12, 3, 44, 3),
    Sketcher.Constraint("Vertical", 27, 3, 45, 3),
    Sketcher.Constraint("Vertical", 28, 3, 46, 3),
    Sketcher.Constraint("Vertical", 29, 3, 47, 3),
    Sketcher.Constraint("Vertical", 16, 3, 48, 3),
    Sketcher.Constraint("Vertical", 17, 3, 49, 3),
    Sketcher.Constraint("Vertical", 18, 3, 50, 3),
    Sketcher.Constraint("Vertical", 19, 3, 51, 3),
    Sketcher.Constraint("Vertical", 30, 3, 52, 3),
    Sketcher.Constraint("Vertical", 31, 3, 53, 3),
    Sketcher.Constraint("Vertical", 32, 3, 54, 3),
    Sketcher.Constraint("Vertical", 0, 3, 55, 3),
    Sketcher.Constraint("Vertical", 55, 3, 56, 3),
    Sketcher.Constraint("Vertical", 56, 3, 57, 3),
    Sketcher.Constraint("Vertical", 34, 3, 58, 3),
    Sketcher.Constraint("Vertical", 58, 3, 59, 3),
    Sketcher.Constraint("Vertical", 59, 3, 60, 3),
    Sketcher.Constraint("Vertical", 60, 3, 61, 3),
    Sketcher.Constraint("Vertical", 57, 3, 62, 3),
    Sketcher.Constraint("Vertical", 62, 3, 63, 3),
    Sketcher.Constraint("Vertical", 63, 3, 64, 3),
    Sketcher.Constraint("Vertical", 52, 3, 65, 3),
    Sketcher.Constraint("Vertical", 54, 3, 66, 3),
    Sketcher.Constraint("Vertical", 66, 3, 67, 3),
    Sketcher.Constraint("Vertical", 67, 3, 68, 3),
    Sketcher.Constraint("Vertical", 68, 3, 69, 3),
    Sketcher.Constraint("Vertical", 65, 3, 70, 3),
    Sketcher.Constraint("Vertical", 70, 3, 71, 3),
    Sketcher.Constraint("Vertical", 71, 3, 72, 3),
    Sketcher.Constraint("Vertical", 35, 3, 73, 3),
    Sketcher.Constraint("Vertical", 36, 3, 74, 3),
    Sketcher.Constraint("Vertical", 37, 3, 75, 3),
    Sketcher.Constraint("Vertical", 51, 3, 76, 3),
    Sketcher.Constraint("Vertical", 50, 3, 77, 3),
    Sketcher.Constraint("Vertical", 49, 3, 78, 3),
    Sketcher.Constraint("Diameter", 0, 5.01),
    Sketcher.Constraint("Diameter", 73, 5.0),
    Sketcher.Constraint("DistanceX", 0, 3, -1, 1, 467.973183),
    Sketcher.Constraint("DistanceY", 0, 3, -1, 1, 59.177764),
    Sketcher.Constraint("DistanceX", 1, 3, -1, 1, 455.273183),
    Sketcher.Constraint("DistanceX", 2, 3, -1, 1, 442.573183),
    Sketcher.Constraint("DistanceX", 3, 3, -1, 1, 417.173183),
    Sketcher.Constraint("DistanceX", 4, 3, -1, 1, 404.473183),
    Sketcher.Constraint("DistanceX", 5, 3, -1, 1, 391.773183),
    Sketcher.Constraint("DistanceX", 6, 3, -1, 1, 366.373183),
    Sketcher.Constraint("DistanceX", 7, 3, -1, 1, 340.973183),
    Sketcher.Constraint("DistanceX", 8, 3, -1, 1, 315.573183),
    Sketcher.Constraint("DistanceX", 9, 3, -1, 1, 290.173183),
    Sketcher.Constraint("DistanceX", 10, 3, -1, 1, 264.773183),
    Sketcher.Constraint("DistanceX", 11, 3, -1, 1, 175.873183),
    Sketcher.Constraint("DistanceX", 12, 3, -1, 1, 86.973183),
    Sketcher.Constraint("DistanceX", 13, 3, -1, 1, 61.573183),
    Sketcher.Constraint("DistanceX", 14, 3, -1, 1, 48.873183),
    Sketcher.Constraint("DistanceX", 15, 3, -1, 1, 36.173183),
    Sketcher.Constraint("DistanceX", 16, 3, -1, 1, 10.773183),
    Sketcher.Constraint("DistanceX", -1, 1, 17, 3, 40.026817),
    Sketcher.Constraint("DistanceX", -1, 1, 18, 3, 52.726817),
    Sketcher.Constraint("DistanceX", -1, 1, 19, 3, 65.426817),
    Sketcher.Constraint("DistanceX", -1, 1, 20, 3, 90.826817),
    Sketcher.Constraint("DistanceX", -1, 1, 21, 3, 103.526817),
    Sketcher.Constraint("DistanceX", -1, 1, 22, 3, 116.226817),
    Sketcher.Constraint("DistanceY", 23, 3, -1, 1, 71.877764),
    Sketcher.Constraint("DistanceY", 33, 3, -1, 1, 84.577764),
    Sketcher.Constraint("DistanceY", 57, 3, -1, 1, 135.377764),
    Sketcher.Constraint("DistanceY", 59, 3, -1, 1, 122.677764),
    Sketcher.Constraint("DistanceY", 60, 3, -1, 1, 109.977764),
    Sketcher.Constraint("DistanceY", 61, 3, -1, 1, 97.277764),
])
pocket2 = doc.addObject("PartDesign::Pocket", "Pocket001")
body.addObject(pocket2)
pocket2.Profile = sketch5
pocket2.Type = "ThroughAll"

sketch6 = doc.addObject("Sketcher::SketchObject", "Sketch005")
body.addObject(sketch6)
sketch6.AttachmentSupport = (doc.XY_Plane, [""])
sketch6.MapMode = "FlatFace"
sketch6.AttachmentOffset = App.Placement(V(0, 0, 0.125 * 25.4), App.Rotation())
sketch6.addGeometry(Part.Circle(V(-112.4, -71.9, 0), V(0, 0, 1), 2.5), False)
sketch6.addConstraint([
    Sketcher.Constraint("Diameter", 0, 5.0),
    Sketcher.Constraint("DistanceX", 0, 3, -1, 1, 112.373183),
    Sketcher.Constraint("DistanceY", 0, 3, -1, 1, 71.877764),
])
pocket3 = doc.addObject("PartDesign::Pocket", "Pocket002")
body.addObject(pocket3)
pocket3.Profile = sketch6
pocket3.Type = "ThroughAll"

sketch7 = doc.addObject("Sketcher::SketchObject", "Sketch006")
body.addObject(sketch7)
sketch7.AttachmentSupport = (doc.XY_Plane, [""])
sketch7.MapMode = "FlatFace"
sketch7.AttachmentOffset = App.Placement(V(0, 0, 0.125 * 25.4), App.Rotation())
sketch7.addGeometry([
    Part.Circle(V(-125.1, -59.2, 0), V(0, 0, 1), 2.5),
    Part.Circle(V(-112.4, -59.2, 0), V(0, 0, 1), 2.5),
    Part.Circle(V(-99.7, -59.2, 0), V(0, 0, 1), 2.5),
    Part.Circle(V(-99.7, -71.9, 0), V(0, 0, 1), 2.5),
    Part.Circle(V(-112.4, -84.6, 0), V(0, 0, 1), 2.5),
    Part.Circle(V(-99.7, -84.6, 0), V(0, 0, 1), 2.5),
    Part.Circle(V(-125.1, -71.9, 0), V(0, 0, 1), 2.5),
    Part.Circle(V(-125.1, -84.6, 0), V(0, 0, 1), 2.5),
], False)
sketch7.addConstraint([
    Sketcher.Constraint("Equal", 0, 1),
    Sketcher.Constraint("Equal", 1, 2),
    Sketcher.Constraint("Equal", 2, 3),
    Sketcher.Constraint("Equal", 3, 4),
    Sketcher.Constraint("Equal", 4, 5),
    Sketcher.Constraint("Equal", 5, 6),
    Sketcher.Constraint("Equal", 6, 7),
    Sketcher.Constraint("Horizontal", 0, 3, 1, 3),
    Sketcher.Constraint("Horizontal", 1, 3, 2, 3),
    Sketcher.Constraint("Horizontal", 4, 3, 5, 3),
    Sketcher.Constraint("Horizontal", 3, 3, 6, 3),
    Sketcher.Constraint("Horizontal", 5, 3, 7, 3),
    Sketcher.Constraint("Vertical", 2, 3, 3, 3),
    Sketcher.Constraint("Vertical", 1, 3, 4, 3),
    Sketcher.Constraint("Vertical", 3, 3, 5, 3),
    Sketcher.Constraint("Vertical", 0, 3, 6, 3),
    Sketcher.Constraint("Vertical", 6, 3, 7, 3),
    Sketcher.Constraint("DistanceX", 0, 3, 2, 3, Q("1 in")),
    Sketcher.Constraint("DistanceY", 4, 3, 1, 3, Q("1 in")),
    Sketcher.Constraint("DistanceX", 0, 3, 1, 3, Q("0.5 in")),
    Sketcher.Constraint("DistanceY", 3, 3, 2, 3, Q("0.5 in")),
    Sketcher.Constraint("Diameter", 0, 5.0),
    Sketcher.Constraint("DistanceX", 0, 3, -1, 1, 125.073183),
    Sketcher.Constraint("DistanceY", 0, 3, -1, 1, 59.177764),
])
pocket4 = doc.addObject("PartDesign::Pocket", "Pocket003")
body.addObject(pocket4)
pocket4.Profile = sketch7
pocket4.Type = "ThroughAll"

doc.recompute()
